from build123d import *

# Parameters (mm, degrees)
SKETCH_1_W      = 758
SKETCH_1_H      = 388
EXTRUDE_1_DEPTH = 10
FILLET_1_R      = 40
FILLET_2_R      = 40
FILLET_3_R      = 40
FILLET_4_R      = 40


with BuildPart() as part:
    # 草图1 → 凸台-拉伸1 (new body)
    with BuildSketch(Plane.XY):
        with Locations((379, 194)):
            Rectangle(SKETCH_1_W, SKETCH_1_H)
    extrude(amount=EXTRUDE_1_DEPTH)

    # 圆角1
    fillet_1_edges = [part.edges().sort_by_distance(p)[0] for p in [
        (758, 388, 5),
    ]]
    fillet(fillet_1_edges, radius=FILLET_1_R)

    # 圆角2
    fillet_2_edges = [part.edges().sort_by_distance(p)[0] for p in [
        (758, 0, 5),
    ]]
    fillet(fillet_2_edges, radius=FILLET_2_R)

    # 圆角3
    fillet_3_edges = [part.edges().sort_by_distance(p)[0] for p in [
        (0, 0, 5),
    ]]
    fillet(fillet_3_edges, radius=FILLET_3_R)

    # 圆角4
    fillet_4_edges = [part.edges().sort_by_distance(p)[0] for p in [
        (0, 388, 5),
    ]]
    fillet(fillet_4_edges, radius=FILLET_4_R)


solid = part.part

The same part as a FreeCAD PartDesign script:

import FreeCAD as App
import Part
import Sketcher

V = App.Vector


def edges_at(feature, points):
    """Names of the edges that pass closest to the given points."""
    edges = feature.Shape.Edges
    near = lambda p: min(range(len(edges)), key=lambda i: edges[i].distToShape(Part.Vertex(*p))[0])
    return sorted({f"Edge{near(p) + 1}" for p in points})

doc = App.newDocument("Part")
body = doc.addObject("PartDesign::Body", "Body")

sketch1 = body.newObject("Sketcher::SketchObject", "Sketch")
sketch1.AttachmentSupport = (doc.getObject("XY_Plane"), [""])
sketch1.MapMode = "FlatFace"
sketch1.addGeometry([
    Part.LineSegment(V(0, 388, 0), V(0, 0, 0)),
    Part.LineSegment(V(0, 0, 0), V(758, 0, 0)),
    Part.LineSegment(V(758, 0, 0), V(758, 388, 0)),
    Part.LineSegment(V(758, 388, 0), V(0, 388, 0)),
], False)
sketch1.addConstraint([
    Sketcher.Constraint("Coincident", 0, 2, 1, 1),
    Sketcher.Constraint("Coincident", 1, 2, 2, 1),
    Sketcher.Constraint("Coincident", 2, 2, 3, 1),
    Sketcher.Constraint("Coincident", 3, 2, 0, 1),
    Sketcher.Constraint("Vertical", 0),
    Sketcher.Constraint("Horizontal", 1),
    Sketcher.Constraint("Vertical", 2),
    Sketcher.Constraint("Horizontal", 3),
    Sketcher.Constraint("Coincident", 0, 2, -1, 1),
    Sketcher.Constraint("DistanceX", 1, 1, 1, 2, 758.0),
    Sketcher.Constraint("DistanceY", 0, 2, 0, 1, 388.0),
])
pad1 = body.newObject("PartDesign::Pad", "Pad")
pad1.Profile = sketch1
pad1.Length = 10
doc.recompute()

fillet = body.newObject("PartDesign::Fillet", "Fillet")
fillet.Base = (pad1, edges_at(pad1, [(758, 388, 5)]))
fillet.Radius = 40
doc.recompute()

fillet2 = body.newObject("PartDesign::Fillet", "Fillet001")
fillet2.Base = (fillet, edges_at(fillet, [(758, 0, 5)]))
fillet2.Radius = 40
doc.recompute()

fillet3 = body.newObject("PartDesign::Fillet", "Fillet002")
fillet3.Base = (fillet2, edges_at(fillet2, [(0, 0, 5)]))
fillet3.Radius = 40
doc.recompute()

fillet4 = body.newObject("PartDesign::Fillet", "Fillet003")
fillet4.Base = (fillet3, edges_at(fillet3, [(0, 388, 5)]))
fillet4.Radius = 40

doc.recompute()
